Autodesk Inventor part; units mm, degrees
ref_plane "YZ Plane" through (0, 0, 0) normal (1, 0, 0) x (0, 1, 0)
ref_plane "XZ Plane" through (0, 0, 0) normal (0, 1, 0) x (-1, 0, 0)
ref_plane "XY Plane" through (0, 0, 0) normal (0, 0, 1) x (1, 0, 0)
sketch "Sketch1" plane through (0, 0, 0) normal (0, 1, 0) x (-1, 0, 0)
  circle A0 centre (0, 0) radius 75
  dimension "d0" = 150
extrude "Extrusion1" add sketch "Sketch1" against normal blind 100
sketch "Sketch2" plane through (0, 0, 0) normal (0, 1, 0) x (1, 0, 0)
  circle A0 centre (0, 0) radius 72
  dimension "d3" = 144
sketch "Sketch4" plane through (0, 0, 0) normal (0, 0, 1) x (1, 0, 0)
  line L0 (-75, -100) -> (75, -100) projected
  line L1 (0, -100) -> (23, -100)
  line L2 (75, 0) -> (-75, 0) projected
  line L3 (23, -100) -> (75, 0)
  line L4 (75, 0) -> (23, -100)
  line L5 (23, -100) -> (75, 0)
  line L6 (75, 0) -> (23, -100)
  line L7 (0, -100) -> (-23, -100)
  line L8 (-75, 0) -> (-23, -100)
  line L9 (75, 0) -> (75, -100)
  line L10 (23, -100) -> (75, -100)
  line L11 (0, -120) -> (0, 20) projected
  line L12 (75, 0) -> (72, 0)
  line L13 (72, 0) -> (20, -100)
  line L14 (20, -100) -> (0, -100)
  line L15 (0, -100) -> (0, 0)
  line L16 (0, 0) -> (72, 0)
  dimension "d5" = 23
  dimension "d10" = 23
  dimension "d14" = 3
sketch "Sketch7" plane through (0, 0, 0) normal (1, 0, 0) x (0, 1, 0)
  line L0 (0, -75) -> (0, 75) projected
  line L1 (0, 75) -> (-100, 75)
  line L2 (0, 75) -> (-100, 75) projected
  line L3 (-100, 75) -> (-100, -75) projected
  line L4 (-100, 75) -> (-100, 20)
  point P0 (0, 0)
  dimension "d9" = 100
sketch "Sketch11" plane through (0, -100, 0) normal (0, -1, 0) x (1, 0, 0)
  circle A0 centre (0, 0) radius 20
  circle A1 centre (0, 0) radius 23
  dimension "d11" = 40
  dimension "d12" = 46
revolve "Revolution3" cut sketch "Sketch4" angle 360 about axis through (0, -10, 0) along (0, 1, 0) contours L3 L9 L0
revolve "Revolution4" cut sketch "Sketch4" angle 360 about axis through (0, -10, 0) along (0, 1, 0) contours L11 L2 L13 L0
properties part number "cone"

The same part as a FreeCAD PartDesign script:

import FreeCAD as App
import Part
import Sketcher
Q = App.Units.Quantity


def add_polygon(sketch, points):
    """Adds a closed chain of lines whose ends are joined by coincident constraints."""
    first, n = sketch.GeometryCount, len(points)
    for a, b in zip(points, points[1:] + points[:1]):
        sketch.addGeometry(Part.LineSegment(App.Vector(*a, 0), App.Vector(*b, 0)), False)
    for i in range(n):
        sketch.addConstraint(Sketcher.Constraint("Coincident", first + i, 2, first + (i + 1) % n, 1))

doc = App.newDocument("Part")
body = doc.addObject("PartDesign::Body", "Body")

sketch1 = body.newObject("Sketcher::SketchObject", "Sketch")
sketch1.AttachmentSupport = (doc.getObject("XZ_Plane"), [""])
sketch1.MapMode = "FlatFace"
sketch1.addGeometry(Part.Circle(App.Vector(0, 0, 0), App.Vector(0, 0, 1), 75), False)
sketch1.addConstraint([
    Sketcher.Constraint("Coincident", 0, 3, -1, 1),
    Sketcher.Constraint("Diameter", 0, Q("150 mm")),
])
pad1 = body.newObject("PartDesign::Pad", "Pad")
pad1.Profile = sketch1
pad1.Length = 100

sketch2 = body.newObject("Sketcher::SketchObject", "Sketch001")
sketch2.AttachmentSupport = (doc.getObject("XY_Plane"), [""])
sketch2.MapMode = "FlatFace"
add_polygon(sketch2, [(75, 0), (23, -100), (75, -100)])
sketch2.addConstraint([
    Sketcher.Constraint("Horizontal", 1),
    Sketcher.Constraint("Vertical", 2),
    Sketcher.Constraint("PointOnObject", 2, 2, -1),
    Sketcher.Constraint("DistanceX", -1, 1, 0, 2, Q("23 mm")),
    Sketcher.Constraint("DistanceX", 1, 1, 1, 2, Q("52 mm")),
    Sketcher.Constraint("DistanceY", 2, 1, 2, 2, Q("100 mm")),
])
groove = body.newObject("PartDesign::Groove", "Groove")
groove.Profile = sketch2
groove.ReferenceAxis = (sketch2, ["V_Axis"])
groove.Angle = 360

sketch3 = body.newObject("Sketcher::SketchObject", "Sketch002")
sketch3.AttachmentSupport = (doc.getObject("XY_Plane"), [""])
sketch3.MapMode = "FlatFace"
add_polygon(sketch3, [(0, 0), (0, -100), (20, -100), (72, 0)])
sketch3.addConstraint([
    Sketcher.Constraint("Vertical", 0),
    Sketcher.Constraint("Horizontal", 1),
    Sketcher.Constraint("Horizontal", 3),
    Sketcher.Constraint("Coincident", 3, 2, -1, 1),
    Sketcher.Constraint("DistanceX", 1, 1, 1, 2, Q("20 mm")),
    Sketcher.Constraint("DistanceX", 3, 2, 3, 1, Q("72 mm")),
    Sketcher.Constraint("DistanceY", 0, 2, 0, 1, Q("100 mm")),
])
groove2 = body.newObject("PartDesign::Groove", "Groove001")
groove2.Profile = sketch3
groove2.ReferenceAxis = (sketch3, ["V_Axis"])
groove2.Angle = 360

doc.recompute()
